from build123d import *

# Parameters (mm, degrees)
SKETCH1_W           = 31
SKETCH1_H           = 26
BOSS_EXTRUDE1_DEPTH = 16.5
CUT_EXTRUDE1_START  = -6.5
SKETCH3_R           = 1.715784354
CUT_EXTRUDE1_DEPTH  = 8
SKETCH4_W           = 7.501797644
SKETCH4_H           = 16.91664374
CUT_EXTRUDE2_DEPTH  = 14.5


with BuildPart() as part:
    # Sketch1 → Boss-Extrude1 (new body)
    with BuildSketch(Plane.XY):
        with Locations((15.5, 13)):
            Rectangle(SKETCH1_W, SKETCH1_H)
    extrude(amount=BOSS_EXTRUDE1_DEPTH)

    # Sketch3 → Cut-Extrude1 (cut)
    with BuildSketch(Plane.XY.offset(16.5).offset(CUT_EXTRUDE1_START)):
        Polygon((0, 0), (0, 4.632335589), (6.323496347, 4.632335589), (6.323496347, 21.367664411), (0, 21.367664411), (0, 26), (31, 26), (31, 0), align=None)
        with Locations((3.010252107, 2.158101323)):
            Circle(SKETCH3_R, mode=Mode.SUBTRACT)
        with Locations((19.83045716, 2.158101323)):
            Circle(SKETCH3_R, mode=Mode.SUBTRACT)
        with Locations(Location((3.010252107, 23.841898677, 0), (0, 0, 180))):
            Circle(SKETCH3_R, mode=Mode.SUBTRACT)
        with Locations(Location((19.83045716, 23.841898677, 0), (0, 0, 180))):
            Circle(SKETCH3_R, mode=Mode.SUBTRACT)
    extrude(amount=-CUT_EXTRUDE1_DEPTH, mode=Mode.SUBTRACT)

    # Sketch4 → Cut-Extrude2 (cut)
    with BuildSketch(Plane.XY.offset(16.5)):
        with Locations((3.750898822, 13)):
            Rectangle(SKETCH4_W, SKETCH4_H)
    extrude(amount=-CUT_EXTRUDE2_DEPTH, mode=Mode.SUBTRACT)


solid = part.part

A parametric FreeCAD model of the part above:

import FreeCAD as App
import Part
import Sketcher
from FreeCAD import Vector


def add_polygon(sketch, points):
    """Adds a closed chain of lines whose ends are joined by coincident constraints."""
    first, n = sketch.GeometryCount, len(points)
    for a, b in zip(points, points[1:] + points[:1]):
        sketch.addGeometry(Part.LineSegment(App.Vector(*a, 0), App.Vector(*b, 0)), False)
    for i in range(n):
        sketch.addConstraint(Sketcher.Constraint("Coincident", first + i, 2, first + (i + 1) % n, 1))

doc = App.newDocument("Part")
body = doc.addObject("PartDesign::Body", "Body")

# Sketch on XY plane
sketch1 = body.newObject("Sketcher::SketchObject", "Sketch")
sketch1.AttachmentSupport = (doc.getObject("XY_Plane"), [""])
sketch1.MapMode = "FlatFace"
add_polygon(sketch1, [(0, 26), (0, 0), (31, 0), (31, 26)])  # lines 0-3
sketch1.addConstraint([
    Sketcher.Constraint("Vertical", 0),
    Sketcher.Constraint("Horizontal", 1),
    Sketcher.Constraint("Vertical", 2),
    Sketcher.Constraint("Horizontal", 3),
    Sketcher.Constraint("Coincident", 0, 2, -1, 1),
    Sketcher.Constraint("DistanceX", 1, 1, 1, 2, 31.0),
    Sketcher.Constraint("DistanceY", 0, 2, 0, 1, 26.0),
])
pad1 = body.newObject("PartDesign::Pad", "Pad")
pad1.Profile = sketch1
pad1.Length = 16.5

# Sketch on XY plane
sketch2 = body.newObject("Sketcher::SketchObject", "Sketch001")
sketch2.AttachmentSupport = (doc.getObject("XY_Plane"), [""])
sketch2.MapMode = "FlatFace"
sketch2.AttachmentOffset = App.Placement(Vector(0, 0, 10), App.Rotation())
add_polygon(sketch2, [(0, 4.6), (0, 0), (31, 0), (31, 26), (0, 26), (0, 21.4), (6.3, 21.4), (6.3, 4.6)])  # lines 0-7
sketch2.addGeometry(Part.Circle(Vector(19.8, 2.2, 0), Vector(0, 0, 1), 1.7), False)  # 8
sketch2.addGeometry(Part.Circle(Vector(3, 2.2, 0), Vector(0, 0, 1), 1.7), False)  # 9
sketch2.addGeometry(Part.Circle(Vector(19.8, 23.8, 0), Vector(0, 0, 1), 1.7), False)  # 10
sketch2.addGeometry(Part.Circle(Vector(3, 23.8, 0), Vector(0, 0, 1), 1.7), False)  # 11
sketch2.addConstraint([
    Sketcher.Constraint("Vertical", 0),
    Sketcher.Constraint("Horizontal", 1),
    Sketcher.Constraint("Vertical", 2),
    Sketcher.Constraint("Horizontal", 3),
    Sketcher.Constraint("Vertical", 4),
    Sketcher.Constraint("Horizontal", 5),
    Sketcher.Constraint("Vertical", 6),
    Sketcher.Constraint("Horizontal", 7),
    Sketcher.Constraint("Coincident", 0, 2, -1, 1),
    Sketcher.Constraint("Equal", 8, 9),
    Sketcher.Constraint("Equal", 9, 10),
    Sketcher.Constraint("Equal", 10, 11),
    Sketcher.Constraint("PointOnObject", 3, 2, -2),
    Sketcher.Constraint("Horizontal", 8, 3, 9, 3),
    Sketcher.Constraint("Horizontal", 10, 3, 11, 3),
    Sketcher.Constraint("Vertical", 8, 3, 10, 3),
    Sketcher.Constraint("Vertical", 9, 3, 11, 3),
    Sketcher.Constraint("Equal", 0, 4),
    Sketcher.Constraint("DistanceX", 1, 1, 1, 2, 31.0),
    Sketcher.Constraint("DistanceY", 2, 1, 2, 2, 26.0),
    Sketcher.Constraint("Diameter", 8, 3.431569),
    Sketcher.Constraint("DistanceY", 6, 2, 6, 1, 16.735329),
    Sketcher.Constraint("DistanceY", -1, 1, 8, 3, 2.158101),
    Sketcher.Constraint("DistanceY", -1, 1, 10, 3, 23.841899),
    Sketcher.Constraint("DistanceX", 5, 1, 5, 2, 6.323496),
    Sketcher.Constraint("DistanceX", 5, 2, 10, 3, 13.506961),
    Sketcher.Constraint("DistanceX", -1, 1, 9, 3, 3.010252),
])
pocket1 = body.newObject("PartDesign::Pocket", "Pocket")
pocket1.Profile = sketch2
pocket1.Length = 8

# Sketch on XY plane
sketch3 = body.newObject("Sketcher::SketchObject", "Sketch002")
sketch3.AttachmentSupport = (doc.getObject("XY_Plane"), [""])
sketch3.MapMode = "FlatFace"
sketch3.AttachmentOffset = App.Placement(Vector(0, 0, 16.5), App.Rotation())
add_polygon(sketch3, [(0, 21), (0, 5), (8, 5), (8, 21)])  # lines 0-3
sketch3.addConstraint([
    Sketcher.Constraint("Vertical", 0),
    Sketcher.Constraint("Horizontal", 1),
    Sketcher.Constraint("Vertical", 2),
    Sketcher.Constraint("Horizontal", 3),
    Sketcher.Constraint("PointOnObject", 0, 2, -2),
    Sketcher.Constraint("DistanceX", 1, 1, 1, 2, 7.501798),
    Sketcher.Constraint("DistanceY", 0, 2, 0, 1, 16.916644),
    Sketcher.Constraint("DistanceY", -1, 1, 0, 2, 4.541678),
])
pocket2 = body.newObject("PartDesign::Pocket", "Pocket001")
pocket2.Profile = sketch3
pocket2.Length = 14.5

doc.recompute()
